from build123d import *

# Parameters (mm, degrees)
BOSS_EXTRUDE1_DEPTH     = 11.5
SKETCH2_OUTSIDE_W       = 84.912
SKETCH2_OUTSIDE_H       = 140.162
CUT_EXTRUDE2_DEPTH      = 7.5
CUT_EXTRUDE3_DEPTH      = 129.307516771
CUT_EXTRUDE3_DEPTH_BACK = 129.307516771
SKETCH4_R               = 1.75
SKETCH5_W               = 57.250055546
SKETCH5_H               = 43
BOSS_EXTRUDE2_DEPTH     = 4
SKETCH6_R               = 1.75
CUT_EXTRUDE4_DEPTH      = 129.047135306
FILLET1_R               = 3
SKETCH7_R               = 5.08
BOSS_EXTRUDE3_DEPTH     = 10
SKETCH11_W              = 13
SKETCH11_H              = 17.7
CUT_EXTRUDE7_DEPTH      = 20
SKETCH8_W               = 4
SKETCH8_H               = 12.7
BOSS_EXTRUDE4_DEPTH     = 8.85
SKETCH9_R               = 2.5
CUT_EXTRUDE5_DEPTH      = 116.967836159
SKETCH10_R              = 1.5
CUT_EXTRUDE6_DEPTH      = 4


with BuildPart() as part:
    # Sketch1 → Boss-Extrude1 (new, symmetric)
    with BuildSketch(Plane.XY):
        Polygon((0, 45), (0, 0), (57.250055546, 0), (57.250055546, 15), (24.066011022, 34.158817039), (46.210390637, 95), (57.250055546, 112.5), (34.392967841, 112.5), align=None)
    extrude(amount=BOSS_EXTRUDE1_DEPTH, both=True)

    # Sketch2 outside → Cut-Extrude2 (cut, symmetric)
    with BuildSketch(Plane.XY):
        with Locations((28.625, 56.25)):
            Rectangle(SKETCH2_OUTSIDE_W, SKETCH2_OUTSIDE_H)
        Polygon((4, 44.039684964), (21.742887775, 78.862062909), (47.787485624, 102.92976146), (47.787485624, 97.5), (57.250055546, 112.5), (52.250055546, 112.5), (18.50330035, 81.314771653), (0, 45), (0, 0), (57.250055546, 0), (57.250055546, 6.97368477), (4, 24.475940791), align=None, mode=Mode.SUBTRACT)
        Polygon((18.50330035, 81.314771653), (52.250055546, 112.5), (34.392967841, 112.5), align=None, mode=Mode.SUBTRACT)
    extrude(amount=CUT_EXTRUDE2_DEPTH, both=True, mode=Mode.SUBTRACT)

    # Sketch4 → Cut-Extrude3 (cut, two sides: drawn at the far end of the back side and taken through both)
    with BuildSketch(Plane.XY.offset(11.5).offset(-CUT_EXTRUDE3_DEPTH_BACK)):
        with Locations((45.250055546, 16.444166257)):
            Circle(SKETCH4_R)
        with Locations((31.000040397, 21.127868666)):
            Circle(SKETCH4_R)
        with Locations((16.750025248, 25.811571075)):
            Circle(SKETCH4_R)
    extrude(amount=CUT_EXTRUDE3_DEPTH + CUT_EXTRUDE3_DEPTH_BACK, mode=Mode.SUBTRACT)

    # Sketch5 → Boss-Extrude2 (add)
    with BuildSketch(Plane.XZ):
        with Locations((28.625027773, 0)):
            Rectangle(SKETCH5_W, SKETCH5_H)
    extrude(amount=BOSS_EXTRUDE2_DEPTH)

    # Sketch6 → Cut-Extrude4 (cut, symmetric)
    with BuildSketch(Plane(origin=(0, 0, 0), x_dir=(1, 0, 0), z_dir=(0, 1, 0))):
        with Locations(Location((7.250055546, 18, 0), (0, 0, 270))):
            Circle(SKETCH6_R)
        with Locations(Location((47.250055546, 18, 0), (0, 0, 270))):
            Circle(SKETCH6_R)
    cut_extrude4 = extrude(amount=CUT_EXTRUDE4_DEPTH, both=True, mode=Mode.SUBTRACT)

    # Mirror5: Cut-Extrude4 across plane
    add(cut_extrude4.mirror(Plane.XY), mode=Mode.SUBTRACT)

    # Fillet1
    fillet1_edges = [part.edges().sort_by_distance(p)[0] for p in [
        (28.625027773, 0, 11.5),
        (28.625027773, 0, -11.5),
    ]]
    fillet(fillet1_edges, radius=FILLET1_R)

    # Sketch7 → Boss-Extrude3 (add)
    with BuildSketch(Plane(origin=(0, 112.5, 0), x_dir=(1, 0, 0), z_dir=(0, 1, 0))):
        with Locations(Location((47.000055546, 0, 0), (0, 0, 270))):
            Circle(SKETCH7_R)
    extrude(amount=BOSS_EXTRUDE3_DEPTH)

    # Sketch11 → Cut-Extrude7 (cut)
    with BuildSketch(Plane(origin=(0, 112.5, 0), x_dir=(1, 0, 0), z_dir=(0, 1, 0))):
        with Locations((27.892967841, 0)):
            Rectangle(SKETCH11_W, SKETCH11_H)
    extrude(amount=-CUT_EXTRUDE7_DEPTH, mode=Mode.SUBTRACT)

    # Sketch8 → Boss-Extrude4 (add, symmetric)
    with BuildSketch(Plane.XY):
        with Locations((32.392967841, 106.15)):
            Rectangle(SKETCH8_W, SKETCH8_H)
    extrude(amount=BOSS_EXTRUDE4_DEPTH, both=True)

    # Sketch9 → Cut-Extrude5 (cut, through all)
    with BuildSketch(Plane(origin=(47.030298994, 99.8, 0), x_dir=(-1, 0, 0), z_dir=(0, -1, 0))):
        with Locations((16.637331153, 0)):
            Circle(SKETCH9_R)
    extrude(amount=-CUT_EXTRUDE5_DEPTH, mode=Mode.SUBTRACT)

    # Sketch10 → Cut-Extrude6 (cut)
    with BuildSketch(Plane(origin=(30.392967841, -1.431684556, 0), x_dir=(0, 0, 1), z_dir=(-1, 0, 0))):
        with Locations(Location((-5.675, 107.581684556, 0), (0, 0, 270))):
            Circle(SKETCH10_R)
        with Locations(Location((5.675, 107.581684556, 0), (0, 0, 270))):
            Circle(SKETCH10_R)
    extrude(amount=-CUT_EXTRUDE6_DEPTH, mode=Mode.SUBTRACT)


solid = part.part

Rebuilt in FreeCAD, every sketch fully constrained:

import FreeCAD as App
import Part
import Sketcher
from FreeCAD import Vector
Q = App.Units.Quantity


def edges_at(feature, points):
    """Names of the edges that pass closest to the given points."""
    edges = feature.Shape.Edges
    near = lambda p: min(range(len(edges)), key=lambda i: edges[i].distToShape(Part.Vertex(*p))[0])
    return sorted({f"Edge{near(p) + 1}" for p in points})


def add_polygon(sketch, points):
    """Adds a closed chain of lines whose ends are joined by coincident constraints."""
    first, n = sketch.GeometryCount, len(points)
    for a, b in zip(points, points[1:] + points[:1]):
        sketch.addGeometry(Part.LineSegment(App.Vector(*a, 0), App.Vector(*b, 0)), False)
    for i in range(n):
        sketch.addConstraint(Sketcher.Constraint("Coincident", first + i, 2, first + (i + 1) % n, 1))

doc = App.newDocument("Part")
params = doc.addObject("Spreadsheet::Sheet", "Params")
for row, (alias, value) in enumerate([
    ("sketch1_height", "45 mm"),
    ("sketch1_height2", "15 mm"),
    ("pad1_length", "23 mm"),
    ("sketch2_height", "45 mm"),
    ("sketch2_length", "35 mm"),
    ("pocket1_length", "15 mm"),
    ("sketch3_diameter", "3.5 mm"),
    ("sketch4_height", "43 mm"),
    ("pad2_length", "4 mm"),
    ("sketch5_diameter", "3.5 mm"),
    ("pocket3_length", "258.094271 mm"),
    ("fillet_radius", "3 mm"),
    ("sketch6_diameter", "10.16 mm"),
    ("pad3_length", "10 mm"),
    ("sketch7_width", "13 mm"),
    ("sketch7_height", "17.7 mm"),
    ("pocket4_length", "20 mm"),
    ("sketch8_width", "4 mm"),
    ("sketch8_height", "12.7 mm"),
    ("pad4_length", "17.7 mm"),
    ("sketch9_diameter", "5 mm"),
    ("sketch10_diameter", "3 mm"),
    ("pocket6_length", "4 mm"),
], start=1):
    params.set(f"A{row}", alias)
    params.set(f"B{row}", "=" + value)
    params.setAlias(f"B{row}", alias)

body = doc.addObject("PartDesign::Body", "Body")

# Sketch on XY plane
sketch1 = doc.addObject("Sketcher::SketchObject", "Sketch")
body.addObject(sketch1)
sketch1.AttachmentSupport = (doc.XY_Plane, [""])
sketch1.MapMode = "FlatFace"
add_polygon(sketch1, [(0, 45), (0, 0), (57.250056, 0), (57.250056, 15), (24.066011, 34.158817), (46.210391, 95), (57.250056, 112.5), (34.392968, 112.5)])  # lines 0-7
sketch1.addConstraint(Sketcher.Constraint("Vertical", 0))
sketch1.addConstraint(Sketcher.Constraint("Horizontal", 1))
sketch1.addConstraint(Sketcher.Constraint("Vertical", 2))
sketch1.addConstraint(Sketcher.Constraint("Horizontal", 6))
sketch1.addConstraint(Sketcher.Constraint("Coincident", 0, 2, -1, 1))
sketch1.addConstraint(Sketcher.Constraint("Vertical", 2, 2, 5, 2))
sketch1.addConstraint(Sketcher.Constraint("DistanceY", 0, 2, 0, 1, Q("45 mm")))
sketch1.addConstraint(Sketcher.Constraint("DistanceY", 2, 1, 2, 2, Q("15 mm")))
sketch1.addConstraint(Sketcher.Constraint("Angle", 3, Q("150 deg")))
sketch1.addConstraint(Sketcher.Constraint("Angle", 4, Q("70 deg")))
sketch1.addConstraint(Sketcher.Constraint("Angle", 7, Q("-117 deg")))
sketch1.addConstraint(Sketcher.Constraint("DistanceY", -1, 1, 4, 2, Q("95 mm")))
sketch1.addConstraint(Sketcher.Constraint("DistanceY", -1, 1, 5, 2, Q("112.5 mm")))
sketch1.addConstraint(Sketcher.Constraint("DistanceX", 1, 1, 1, 2, Q("57.250056 mm")))
sketch1.addConstraint(Sketcher.Constraint("DistanceX", -1, 1, 3, 2, Q("24.066011 mm")))
sketch1.setExpression("Constraints[14]", "Params.sketch1_height")
sketch1.setExpression("Constraints[15]", "Params.sketch1_height2")
pad1 = doc.addObject("PartDesign::Pad", "Pad")
body.addObject(pad1)
pad1.Profile = sketch1
pad1.setExpression("Length", "Params.pad1_length")
pad1.Midplane = True

# Sketch on XY plane
sketch2 = doc.addObject("Sketcher::SketchObject", "Sketch001")
body.addObject(sketch2)
sketch2.AttachmentSupport = (doc.XY_Plane, [""])
sketch2.MapMode = "FlatFace"
add_polygon(sketch2, [(-13.831, 126.331), (-13.831, -13.831), (71.081, -13.831), (71.081, 126.331)])  # lines 0-3
add_polygon(sketch2, [(21.742888, 78.862063), (4, 44.039685), (4, 24.475941), (57.250056, 6.973685), (57.250056, 0), (0, 0), (0, 45), (18.5033, 81.314772), (34.392968, 112.5), (57.250056, 112.5), (47.787486, 97.5), (47.787486, 102.929761)])  # lines 4-15
sketch2.addConstraint(Sketcher.Constraint("Vertical", 0))
sketch2.addConstraint(Sketcher.Constraint("Horizontal", 1))
sketch2.addConstraint(Sketcher.Constraint("Vertical", 2))
sketch2.addConstraint(Sketcher.Constraint("Horizontal", 3))
sketch2.addConstraint(Sketcher.Constraint("Vertical", 5))
sketch2.addConstraint(Sketcher.Constraint("Vertical", 7))
sketch2.addConstraint(Sketcher.Constraint("Horizontal", 8))
sketch2.addConstraint(Sketcher.Constraint("Vertical", 9))
sketch2.addConstraint(Sketcher.Constraint("Horizontal", 12))
sketch2.addConstraint(Sketcher.Constraint("Vertical", 14))
sketch2.addConstraint(Sketcher.Constraint("Coincident", 8, 2, -1, 1))
sketch2.addConstraint(Sketcher.Constraint("Parallel", 4, 10))
sketch2.addConstraint(Sketcher.Constraint("Parallel", 10, 11))
sketch2.addConstraint(Sketcher.Constraint("Vertical", 7, 2, 12, 2))
sketch2.addConstraint(Sketcher.Constraint("DistanceY", 9, 1, 9, 2, Q("45 mm")))
sketch2.addConstraint(Sketcher.Constraint("Angle", 4, Q("-117 deg")))
sketch2.addConstraint(Sketcher.Constraint("Distance", 11, Q("35 mm")))
sketch2.addConstraint(Sketcher.Constraint("DistanceX", -1, 1, 4, 2, Q("4 mm")))
sketch2.addConstraint(Sketcher.Constraint("DistanceY", 13, 2, 12, 2, Q("15 mm")))
sketch2.addConstraint(Sketcher.Constraint("DistanceY", -1, 1, 11, 2, Q("112.5 mm")))
sketch2.addConstraint(Sketcher.Constraint("DistanceX", 1, 1, 1, 2, Q("84.912 mm")))
sketch2.addConstraint(Sketcher.Constraint("DistanceY", 0, 2, 0, 1, Q("140.162 mm")))
sketch2.addConstraint(Sketcher.Constraint("DistanceX", 0, 2, -1, 1, Q("13.831 mm")))
sketch2.addConstraint(Sketcher.Constraint("DistanceY", 0, 2, -1, 1, Q("13.831 mm")))
sketch2.addConstraint(Sketcher.Constraint("DistanceY", 6, 2, 4, 2, Q("37.066 mm")))
sketch2.addConstraint(Sketcher.Constraint("DistanceY", 14, 1, 14, 2, Q("5.429761 mm")))
sketch2.addConstraint(Sketcher.Constraint("DistanceY", 15, 2, 14, 2, Q("24.067699 mm")))
sketch2.addConstraint(Sketcher.Constraint("Distance", 4, Q("39.082068 mm")))
sketch2.addConstraint(Sketcher.Constraint("Distance", 6, Q("56.05263 mm")))
sketch2.addConstraint(Sketcher.Constraint("DistanceX", 8, 2, 8, 1, Q("57.250056 mm")))
sketch2.addConstraint(Sketcher.Constraint("DistanceX", 13, 2, 12, 2, Q("9.46257 mm")))
sketch2.setExpression("Constraints[30]", "Params.sketch2_height")
sketch2.setExpression("Constraints[32]", "Params.sketch2_length")
pocket1 = doc.addObject("PartDesign::Pocket", "Pocket")
body.addObject(pocket1)
pocket1.Profile = sketch2
pocket1.setExpression("Length", "Params.pocket1_length")
pocket1.Midplane = True

# Sketch on XY plane
sketch3 = doc.addObject("Sketcher::SketchObject", "Sketch002")
body.addObject(sketch3)
sketch3.AttachmentSupport = (doc.XY_Plane, [""])
sketch3.MapMode = "FlatFace"
sketch3.AttachmentOffset = App.Placement(Vector(0, 0, 11.5), App.Rotation())
sketch3.addGeometry(Part.Circle(Vector(45.250056, 16.444166, 0), Vector(0, 0, 1), 1.75), False)
sketch3.addGeometry(Part.Circle(Vector(31.00004, 21.127869, 0), Vector(0, 0, 1), 1.75), False)
sketch3.addGeometry(Part.Circle(Vector(16.750025, 25.811571, 0), Vector(0, 0, 1), 1.75), False)
sketch3.addConstraint(Sketcher.Constraint("Equal", 0, 1))
sketch3.addConstraint(Sketcher.Constraint("Equal", 1, 2))
sketch3.addConstraint(Sketcher.Constraint("Diameter", 0, Q("3.5 mm")))
sketch3.addConstraint(Sketcher.Constraint("DistanceX", -1, 1, 1, 3, Q("31.00004 mm")))
sketch3.addConstraint(Sketcher.Constraint("DistanceY", -1, 1, 1, 3, Q("21.127869 mm")))
sketch3.addConstraint(Sketcher.Constraint("DistanceY", -1, 1, 2, 3, Q("25.811571 mm")))
sketch3.addConstraint(Sketcher.Constraint("DistanceX", 2, 3, 0, 3, Q("28.50003 mm")))
sketch3.addConstraint(Sketcher.Constraint("DistanceX", -1, 1, 0, 3, Q("45.250056 mm")))
sketch3.addConstraint(Sketcher.Constraint("DistanceY", -1, 1, 0, 3, Q("16.444166 mm")))
sketch3.setExpression("Constraints[2]", "Params.sketch3_diameter")
pocket2 = doc.addObject("PartDesign::Pocket", "Pocket001")
body.addObject(pocket2)
pocket2.Profile = sketch3
pocket2.Type = "ThroughAll"
pocket2.Midplane = True

# Sketch on XZ plane
sketch4 = doc.addObject("Sketcher::SketchObject", "Sketch003")
body.addObject(sketch4)
sketch4.AttachmentSupport = (doc.XZ_Plane, [""])
sketch4.MapMode = "FlatFace"
add_polygon(sketch4, [(0, 21.5), (0, -21.5), (57.250056, -21.5), (57.250056, 21.5)])  # lines 0-3
sketch4.addConstraint(Sketcher.Constraint("Vertical", 0))
sketch4.addConstraint(Sketcher.Constraint("Horizontal", 1))
sketch4.addConstraint(Sketcher.Constraint("Vertical", 2))
sketch4.addConstraint(Sketcher.Constraint("Horizontal", 3))
sketch4.addConstraint(Sketcher.Constraint("Symmetric", 0, 2, 3, 2, -1, 1))
sketch4.addConstraint(Sketcher.Constraint("DistanceY", 0, 2, 0, 1, Q("43 mm")))
sketch4.addConstraint(Sketcher.Constraint("DistanceX", 1, 1, 1, 2, Q("57.250056 mm")))
sketch4.setExpression("Constraints[9]", "Params.sketch4_height")
pad2 = doc.addObject("PartDesign::Pad", "Pad001")
body.addObject(pad2)
pad2.Profile = sketch4
pad2.setExpression("Length", "Params.pad2_length")

# Sketch on XZ plane
sketch5 = doc.addObject("Sketcher::SketchObject", "Sketch004")
body.addObject(sketch5)
sketch5.AttachmentSupport = (doc.XZ_Plane, [""])
sketch5.MapMode = "FlatFace"
sketch5.addGeometry(Part.Circle(Vector(7.250056, -18, 0), Vector(0, 0, 1), 1.75), False)
sketch5.addGeometry(Part.Circle(Vector(47.250056, -18, 0), Vector(0, 0, 1), 1.75), False)
sketch5.addConstraint(Sketcher.Constraint("Equal", 0, 1))
sketch5.addConstraint(Sketcher.Constraint("Horizontal", 0, 3, 1, 3))
sketch5.addConstraint(Sketcher.Constraint("Diameter", 0, Q("3.5 mm")))
sketch5.addConstraint(Sketcher.Constraint("DistanceY", 0, 3, -1, 1, Q("18 mm")))
sketch5.addConstraint(Sketcher.Constraint("DistanceX", 0, 3, 1, 3, Q("40 mm")))
sketch5.addConstraint(Sketcher.Constraint("DistanceX", -1, 1, 0, 3, Q("7.250056 mm")))
sketch5.setExpression("Constraints[2]", "Params.sketch5_diameter")
pocket3 = doc.addObject("PartDesign::Pocket", "Pocket002")
body.addObject(pocket3)
pocket3.Profile = sketch5
pocket3.setExpression("Length", "Params.pocket3_length")
pocket3.Midplane = True
doc.recompute()

mirrored = doc.addObject("PartDesign::Mirrored", "Mirrored")
body.addObject(mirrored)
mirrored.Originals = [pocket3]
mirrored.MirrorPlane = (doc.XY_Plane, [""])
body.Tip = mirrored
doc.recompute()

fillet = doc.addObject("PartDesign::Fillet", "Fillet")
body.addObject(fillet)
fillet.Base = (mirrored, edges_at(mirrored, [(28.625, 0, 11.5), (28.625, 0, -11.5)]))
fillet.setExpression("Radius", "Params.fillet_radius")

# Sketch on XZ plane
sketch6 = doc.addObject("Sketcher::SketchObject", "Sketch005")
body.addObject(sketch6)
sketch6.AttachmentSupport = (doc.XZ_Plane, [""])
sketch6.MapMode = "FlatFace"
sketch6.AttachmentOffset = App.Placement(Vector(0, 0, -112.5), App.Rotation())
sketch6.addGeometry(Part.Circle(Vector(47.000056, 0, 0), Vector(0, 0, 1), 5.08), False)
sketch6.addConstraint(Sketcher.Constraint("PointOnObject", 0, 3, -1))
sketch6.addConstraint(Sketcher.Constraint("Diameter", 0, Q("10.16 mm")))
sketch6.addConstraint(Sketcher.Constraint("DistanceX", -1, 1, 0, 3, Q("47.000056 mm")))
sketch6.setExpression("Constraints[1]", "Params.sketch6_diameter")
pad3 = doc.addObject("PartDesign::Pad", "Pad002")
body.addObject(pad3)
pad3.Profile = sketch6
pad3.setExpression("Length", "Params.pad3_length")
pad3.Reversed = True

# Sketch on XZ plane
sketch7 = doc.addObject("Sketcher::SketchObject", "Sketch006")
body.addObject(sketch7)
sketch7.AttachmentSupport = (doc.XZ_Plane, [""])
sketch7.MapMode = "FlatFace"
sketch7.AttachmentOffset = App.Placement(Vector(0, 0, -112.5), App.Rotation())
add_polygon(sketch7, [(21.392968, -8.85), (21.392968, 8.85), (34.392968, 8.85), (34.392968, -8.85)])  # lines 0-3
sketch7.addConstraint(Sketcher.Constraint("Vertical", 0))
sketch7.addConstraint(Sketcher.Constraint("Horizontal", 1))
sketch7.addConstraint(Sketcher.Constraint("Vertical", 2))
sketch7.addConstraint(Sketcher.Constraint("Horizontal", 3))
sketch7.addConstraint(Sketcher.Constraint("DistanceX", 1, 1, 1, 2, Q("13 mm")))
sketch7.addConstraint(Sketcher.Constraint("DistanceY", 0, 1, 0, 2, Q("17.7 mm")))
sketch7.addConstraint(Sketcher.Constraint("DistanceY", -1, 1, 0, 2, Q("8.85 mm")))
sketch7.addConstraint(Sketcher.Constraint("DistanceX", -1, 1, 0, 2, Q("21.392968 mm")))
sketch7.setExpression("Constraints[8]", "Params.sketch7_width")
sketch7.setExpression("Constraints[9]", "Params.sketch7_height")
pocket4 = doc.addObject("PartDesign::Pocket", "Pocket003")
body.addObject(pocket4)
pocket4.Profile = sketch7
pocket4.setExpression("Length", "Params.pocket4_length")
pocket4.Reversed = True

# Sketch on XY plane
sketch8 = doc.addObject("Sketcher::SketchObject", "Sketch007")
body.addObject(sketch8)
sketch8.AttachmentSupport = (doc.XY_Plane, [""])
sketch8.MapMode = "FlatFace"
add_polygon(sketch8, [(30.392968, 112.5), (30.392968, 99.8), (34.392968, 99.8), (34.392968, 112.5)])  # lines 0-3
sketch8.addConstraint(Sketcher.Constraint("Vertical", 0))
sketch8.addConstraint(Sketcher.Constraint("Horizontal", 1))
sketch8.addConstraint(Sketcher.Constraint("Vertical", 2))
sketch8.addConstraint(Sketcher.Constraint("Horizontal", 3))
sketch8.addConstraint(Sketcher.Constraint("DistanceX", 1, 1, 1, 2, Q("4 mm")))
sketch8.addConstraint(Sketcher.Constraint("DistanceY", 0, 2, 0, 1, Q("12.7 mm")))
sketch8.addConstraint(Sketcher.Constraint("DistanceY", -1, 1, 0, 2, Q("99.8 mm")))
sketch8.addConstraint(Sketcher.Constraint("DistanceX", -1, 1, 0, 2, Q("30.392968 mm")))
sketch8.setExpression("Constraints[8]", "Params.sketch8_width")
sketch8.setExpression("Constraints[9]", "Params.sketch8_height")
pad4 = doc.addObject("PartDesign::Pad", "Pad003")
body.addObject(pad4)
pad4.Profile = sketch8
pad4.setExpression("Length", "Params.pad4_length")
pad4.Midplane = True

# Sketch on XZ plane
sketch9 = doc.addObject("Sketcher::SketchObject", "Sketch008")
body.addObject(sketch9)
sketch9.AttachmentSupport = (doc.XZ_Plane, [""])
sketch9.MapMode = "FlatFace"
sketch9.AttachmentOffset = App.Placement(Vector(0, 0, -99.8), App.Rotation())
sketch9.addGeometry(Part.Circle(Vector(30.392968, 0, 0), Vector(0, 0, 1), 2.5), False)
sketch9.addConstraint(Sketcher.Constraint("PointOnObject", 0, 3, -1))
sketch9.addConstraint(Sketcher.Constraint("Diameter", 0, Q("5 mm")))
sketch9.addConstraint(Sketcher.Constraint("DistanceX", -1, 1, 0, 3, Q("30.392968 mm")))
sketch9.setExpression("Constraints[1]", "Params.sketch9_diameter")
pocket5 = doc.addObject("PartDesign::Pocket", "Pocket004")
body.addObject(pocket5)
pocket5.Profile = sketch9
pocket5.Type = "ThroughAll"

# Sketch on YZ plane
sketch10 = doc.addObject("Sketcher::SketchObject", "Sketch009")
body.addObject(sketch10)
sketch10.AttachmentSupport = (doc.YZ_Plane, [""])
sketch10.MapMode = "FlatFace"
sketch10.AttachmentOffset = App.Placement(Vector(0, 0, 30.392968), App.Rotation())
sketch10.addGeometry(Part.Circle(Vector(106.15, -5.675, 0), Vector(0, 0, 1), 1.5), False)
sketch10.addGeometry(Part.Circle(Vector(106.15, 5.675, 0), Vector(0, 0, 1), 1.5), False)
sketch10.addConstraint(Sketcher.Constraint("Equal", 0, 1))
sketch10.addConstraint(Sketcher.Constraint("Symmetric", 0, 3, 1, 3, -1))
sketch10.addConstraint(Sketcher.Constraint("Diameter", 0, Q("3 mm")))
sketch10.addConstraint(Sketcher.Constraint("DistanceX", -1, 1, 0, 3, Q("106.15 mm")))
sketch10.addConstraint(Sketcher.Constraint("DistanceY", 0, 3, 1, 3, Q("11.35 mm")))
sketch10.setExpression("Constraints[2]", "Params.sketch10_diameter")
pocket6 = doc.addObject("PartDesign::Pocket", "Pocket005")
body.addObject(pocket6)
pocket6.Profile = sketch10
pocket6.setExpression("Length", "Params.pocket6_length")
pocket6.Reversed = True

doc.recompute()
